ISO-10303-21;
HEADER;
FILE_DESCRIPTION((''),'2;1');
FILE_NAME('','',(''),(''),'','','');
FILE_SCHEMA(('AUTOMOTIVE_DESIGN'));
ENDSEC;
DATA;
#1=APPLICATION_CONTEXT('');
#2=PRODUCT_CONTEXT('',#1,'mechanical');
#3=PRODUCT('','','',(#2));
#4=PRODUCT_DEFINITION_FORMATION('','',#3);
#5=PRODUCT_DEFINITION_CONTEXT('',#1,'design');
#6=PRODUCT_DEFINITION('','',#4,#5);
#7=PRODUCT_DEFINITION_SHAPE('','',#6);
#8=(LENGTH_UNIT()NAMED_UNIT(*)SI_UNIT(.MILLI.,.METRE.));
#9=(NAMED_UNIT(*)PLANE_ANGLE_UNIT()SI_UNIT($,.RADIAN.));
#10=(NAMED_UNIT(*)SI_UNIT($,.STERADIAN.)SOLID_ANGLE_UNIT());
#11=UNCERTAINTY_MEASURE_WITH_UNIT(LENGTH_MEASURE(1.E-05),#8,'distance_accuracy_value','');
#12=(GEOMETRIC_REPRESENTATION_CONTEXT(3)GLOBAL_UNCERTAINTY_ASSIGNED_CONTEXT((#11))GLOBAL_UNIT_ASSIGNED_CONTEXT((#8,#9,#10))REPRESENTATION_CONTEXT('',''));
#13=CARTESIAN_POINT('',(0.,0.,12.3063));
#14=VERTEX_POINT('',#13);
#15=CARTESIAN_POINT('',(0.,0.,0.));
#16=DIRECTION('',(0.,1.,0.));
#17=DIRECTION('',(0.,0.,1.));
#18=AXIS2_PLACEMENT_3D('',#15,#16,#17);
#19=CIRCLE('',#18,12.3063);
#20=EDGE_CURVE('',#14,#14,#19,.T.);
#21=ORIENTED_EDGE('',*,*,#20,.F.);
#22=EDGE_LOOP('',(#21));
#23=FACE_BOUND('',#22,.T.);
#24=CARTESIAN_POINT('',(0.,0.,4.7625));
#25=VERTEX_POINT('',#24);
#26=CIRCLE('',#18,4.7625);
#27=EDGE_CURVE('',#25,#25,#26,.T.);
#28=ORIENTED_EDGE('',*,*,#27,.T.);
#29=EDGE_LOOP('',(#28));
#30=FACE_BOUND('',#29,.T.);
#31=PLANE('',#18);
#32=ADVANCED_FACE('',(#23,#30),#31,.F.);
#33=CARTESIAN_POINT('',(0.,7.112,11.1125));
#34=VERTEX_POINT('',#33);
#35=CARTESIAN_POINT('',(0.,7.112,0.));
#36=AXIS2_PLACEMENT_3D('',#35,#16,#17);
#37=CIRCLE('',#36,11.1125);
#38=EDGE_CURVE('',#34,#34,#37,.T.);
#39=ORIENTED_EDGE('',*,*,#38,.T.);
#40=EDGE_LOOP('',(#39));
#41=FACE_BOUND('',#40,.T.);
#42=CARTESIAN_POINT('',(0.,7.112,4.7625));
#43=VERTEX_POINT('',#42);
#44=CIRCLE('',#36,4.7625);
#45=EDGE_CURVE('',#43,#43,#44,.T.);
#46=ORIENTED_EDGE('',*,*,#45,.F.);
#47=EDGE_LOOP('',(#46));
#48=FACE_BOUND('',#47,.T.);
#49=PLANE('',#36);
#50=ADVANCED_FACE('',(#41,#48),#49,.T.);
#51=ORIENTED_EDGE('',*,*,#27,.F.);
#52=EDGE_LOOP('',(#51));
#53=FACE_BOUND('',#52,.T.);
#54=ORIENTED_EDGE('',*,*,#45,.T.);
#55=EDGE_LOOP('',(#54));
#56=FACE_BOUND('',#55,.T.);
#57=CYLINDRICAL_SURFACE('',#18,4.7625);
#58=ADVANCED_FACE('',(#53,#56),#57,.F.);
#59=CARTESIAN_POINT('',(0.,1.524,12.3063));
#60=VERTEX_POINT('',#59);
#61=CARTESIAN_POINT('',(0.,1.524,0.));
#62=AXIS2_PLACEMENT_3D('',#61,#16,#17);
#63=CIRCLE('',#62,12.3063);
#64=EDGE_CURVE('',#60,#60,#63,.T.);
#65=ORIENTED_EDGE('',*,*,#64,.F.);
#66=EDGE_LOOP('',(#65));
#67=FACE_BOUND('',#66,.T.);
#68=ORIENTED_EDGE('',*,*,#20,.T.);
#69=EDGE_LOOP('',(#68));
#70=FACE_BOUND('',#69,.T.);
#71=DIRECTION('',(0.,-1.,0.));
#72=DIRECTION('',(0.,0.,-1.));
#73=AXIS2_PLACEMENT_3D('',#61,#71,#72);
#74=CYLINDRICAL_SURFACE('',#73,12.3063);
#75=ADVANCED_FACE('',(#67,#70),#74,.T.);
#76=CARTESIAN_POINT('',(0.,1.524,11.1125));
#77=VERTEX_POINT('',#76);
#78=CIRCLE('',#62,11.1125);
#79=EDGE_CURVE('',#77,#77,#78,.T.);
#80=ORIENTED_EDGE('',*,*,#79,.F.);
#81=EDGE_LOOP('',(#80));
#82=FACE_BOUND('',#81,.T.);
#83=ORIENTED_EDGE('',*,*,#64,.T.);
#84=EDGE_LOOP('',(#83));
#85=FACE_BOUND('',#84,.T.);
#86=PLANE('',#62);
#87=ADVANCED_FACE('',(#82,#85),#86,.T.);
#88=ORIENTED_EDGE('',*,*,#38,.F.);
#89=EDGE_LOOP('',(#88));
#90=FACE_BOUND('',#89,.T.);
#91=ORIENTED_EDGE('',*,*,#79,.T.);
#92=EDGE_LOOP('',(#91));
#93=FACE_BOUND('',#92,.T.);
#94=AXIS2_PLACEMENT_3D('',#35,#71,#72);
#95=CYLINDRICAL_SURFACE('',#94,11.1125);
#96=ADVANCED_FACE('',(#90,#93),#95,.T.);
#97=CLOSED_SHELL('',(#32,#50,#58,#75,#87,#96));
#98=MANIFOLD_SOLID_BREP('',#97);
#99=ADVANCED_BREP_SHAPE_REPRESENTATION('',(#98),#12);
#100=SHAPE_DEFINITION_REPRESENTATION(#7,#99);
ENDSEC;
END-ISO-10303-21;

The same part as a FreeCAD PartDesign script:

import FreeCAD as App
import Part
import Sketcher

V = App.Vector
Q = App.Units.Quantity

doc = App.newDocument("Part")
body = doc.addObject("PartDesign::Body", "Body")

# Sketch on XZ plane
sketch1 = doc.addObject("Sketcher::SketchObject", "Sketch")
body.addObject(sketch1)
sketch1.AttachmentSupport = (doc.XZ_Plane, [""])
sketch1.MapMode = "FlatFace"
sketch1.addGeometry(Part.Circle(V(0, 0, 0), V(0, 0, 1), 12), False)
sketch1.addConstraint([
    Sketcher.Constraint("Coincident", 0, 3, -1, 1),
    Sketcher.Constraint("Diameter", 0, Q("0.969 in")),
])
pad1 = doc.addObject("PartDesign::Pad", "Pad")
body.addObject(pad1)
pad1.Profile = sketch1
pad1.Length = Q("0.06 in")
pad1.Reversed = True

# Sketch on XZ plane
sketch2 = doc.addObject("Sketcher::SketchObject", "Sketch001")
body.addObject(sketch2)
sketch2.AttachmentSupport = (doc.XZ_Plane, [""])
sketch2.MapMode = "FlatFace"
sketch2.AttachmentOffset = App.Placement(V(0, 0, -0.06 * 25.4), App.Rotation())
sketch2.addGeometry(Part.Circle(V(0, 0, 0), V(0, 0, 1), 11), False)
sketch2.addConstraint([
    Sketcher.Constraint("Coincident", 0, 3, -1, 1),
    Sketcher.Constraint("Diameter", 0, Q("0.875 in")),
])
pad2 = doc.addObject("PartDesign::Pad", "Pad001")
body.addObject(pad2)
pad2.Profile = sketch2
pad2.Length = Q("0.22 in")
pad2.Reversed = True

# Sketch on XZ plane
sketch3 = doc.addObject("Sketcher::SketchObject", "Sketch002")
body.addObject(sketch3)
sketch3.AttachmentSupport = (doc.XZ_Plane, [""])
sketch3.MapMode = "FlatFace"
sketch3.AttachmentOffset = App.Placement(V(0, 0, -0.28 * 25.4), App.Rotation())
sketch3.addGeometry(Part.Circle(V(0, 0, 0), V(0, 0, 1), 4.8), False)
sketch3.addConstraint([
    Sketcher.Constraint("Coincident", 0, 3, -1, 1),
    Sketcher.Constraint("Diameter", 0, Q("0.375 in")),
])
pocket1 = doc.addObject("PartDesign::Pocket", "Pocket")
body.addObject(pocket1)
pocket1.Profile = sketch3
pocket1.Type = "ThroughAll"
pocket1.Reversed = True

doc.recompute()
